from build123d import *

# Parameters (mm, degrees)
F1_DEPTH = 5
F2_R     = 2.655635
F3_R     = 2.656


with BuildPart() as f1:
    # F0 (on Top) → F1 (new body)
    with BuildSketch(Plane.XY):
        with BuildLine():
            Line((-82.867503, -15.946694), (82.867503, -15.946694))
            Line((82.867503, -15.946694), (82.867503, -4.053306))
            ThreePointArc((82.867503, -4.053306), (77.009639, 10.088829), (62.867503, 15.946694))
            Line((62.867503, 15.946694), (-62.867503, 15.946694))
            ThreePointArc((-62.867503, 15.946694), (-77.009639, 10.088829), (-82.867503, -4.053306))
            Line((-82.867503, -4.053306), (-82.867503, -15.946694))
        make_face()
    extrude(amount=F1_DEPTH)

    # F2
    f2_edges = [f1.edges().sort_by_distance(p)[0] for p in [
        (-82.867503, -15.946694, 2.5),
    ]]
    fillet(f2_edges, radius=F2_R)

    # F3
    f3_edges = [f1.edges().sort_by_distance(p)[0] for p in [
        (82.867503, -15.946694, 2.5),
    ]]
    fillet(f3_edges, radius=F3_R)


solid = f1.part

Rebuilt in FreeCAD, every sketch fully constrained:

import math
import FreeCAD as App
import Part
import Sketcher
Q = App.Units.Quantity


def edges_at(feature, points):
    """Names of the edges that pass closest to the given points."""
    edges = feature.Shape.Edges
    near = lambda p: min(range(len(edges)), key=lambda i: edges[i].distToShape(Part.Vertex(*p))[0])
    return sorted({f"Edge{near(p) + 1}" for p in points})

doc = App.newDocument("Part")
body = doc.addObject("PartDesign::Body", "Body")

# Sketch on XY plane
sketch1 = body.newObject("Sketcher::SketchObject", "Sketch")
sketch1.AttachmentSupport = (doc.getObject("XY_Plane"), [""])
sketch1.MapMode = "FlatFace"
sketch1.addGeometry([
    Part.LineSegment(App.Vector(-83, -16, 0), App.Vector(83, -16, 0)),  # 0
    Part.LineSegment(App.Vector(83, -16, 0), App.Vector(83, -4, 0)),  # 1
    Part.ArcOfCircle(Part.Circle(App.Vector(63, -4, 0), App.Vector(0, 0, 1), 20), math.radians(0), math.radians(90)),  # 2
    Part.LineSegment(App.Vector(63, 16, 0), App.Vector(-63, 16, 0)),  # 3
    Part.ArcOfCircle(Part.Circle(App.Vector(-63, -4, 0), App.Vector(0, 0, 1), 20), math.radians(90), math.radians(180)),  # 4
    Part.LineSegment(App.Vector(-83, -4, 0), App.Vector(-83, -16, 0)),  # 5
], False)
sketch1.addConstraint([
    Sketcher.Constraint("Coincident", 0, 2, 1, 1),
    Sketcher.Constraint("Tangent", 1, 2, 2, 1),
    Sketcher.Constraint("Tangent", 2, 2, 3, 1),
    Sketcher.Constraint("Tangent", 3, 2, 4, 1),
    Sketcher.Constraint("Tangent", 4, 2, 5, 1),
    Sketcher.Constraint("Coincident", 5, 2, 0, 1),
    Sketcher.Constraint("Horizontal", 0),
    Sketcher.Constraint("Vertical", 1),
    Sketcher.Constraint("Horizontal", 3),
    Sketcher.Constraint("Vertical", 5),
    Sketcher.Constraint("Equal", 2, 4),
    Sketcher.Constraint("Radius", 2, Q("20 mm")),
    Sketcher.Constraint("DistanceY", 1, 1, 1, 2, Q("11.893388 mm")),
    Sketcher.Constraint("DistanceX", 0, 1, 0, 2, Q("165.735006 mm")),
    Sketcher.Constraint("DistanceX", -1, 1, 2, 3, Q("62.867503 mm")),
    Sketcher.Constraint("DistanceY", 2, 3, -1, 1, Q("4.053306 mm")),
])
pad1 = body.newObject("PartDesign::Pad", "Pad")
pad1.Profile = sketch1
pad1.Length = 5
doc.recompute()

fillet = body.newObject("PartDesign::Fillet", "Fillet")
fillet.Base = (pad1, edges_at(pad1, [(-82.868, -15.947, 2.5)]))
fillet.Radius = 2.655635
doc.recompute()

fillet2 = body.newObject("PartDesign::Fillet", "Fillet001")
fillet2.Base = (fillet, edges_at(fillet, [(82.868, -15.947, 2.5)]))
fillet2.Radius = 2.656

doc.recompute()
